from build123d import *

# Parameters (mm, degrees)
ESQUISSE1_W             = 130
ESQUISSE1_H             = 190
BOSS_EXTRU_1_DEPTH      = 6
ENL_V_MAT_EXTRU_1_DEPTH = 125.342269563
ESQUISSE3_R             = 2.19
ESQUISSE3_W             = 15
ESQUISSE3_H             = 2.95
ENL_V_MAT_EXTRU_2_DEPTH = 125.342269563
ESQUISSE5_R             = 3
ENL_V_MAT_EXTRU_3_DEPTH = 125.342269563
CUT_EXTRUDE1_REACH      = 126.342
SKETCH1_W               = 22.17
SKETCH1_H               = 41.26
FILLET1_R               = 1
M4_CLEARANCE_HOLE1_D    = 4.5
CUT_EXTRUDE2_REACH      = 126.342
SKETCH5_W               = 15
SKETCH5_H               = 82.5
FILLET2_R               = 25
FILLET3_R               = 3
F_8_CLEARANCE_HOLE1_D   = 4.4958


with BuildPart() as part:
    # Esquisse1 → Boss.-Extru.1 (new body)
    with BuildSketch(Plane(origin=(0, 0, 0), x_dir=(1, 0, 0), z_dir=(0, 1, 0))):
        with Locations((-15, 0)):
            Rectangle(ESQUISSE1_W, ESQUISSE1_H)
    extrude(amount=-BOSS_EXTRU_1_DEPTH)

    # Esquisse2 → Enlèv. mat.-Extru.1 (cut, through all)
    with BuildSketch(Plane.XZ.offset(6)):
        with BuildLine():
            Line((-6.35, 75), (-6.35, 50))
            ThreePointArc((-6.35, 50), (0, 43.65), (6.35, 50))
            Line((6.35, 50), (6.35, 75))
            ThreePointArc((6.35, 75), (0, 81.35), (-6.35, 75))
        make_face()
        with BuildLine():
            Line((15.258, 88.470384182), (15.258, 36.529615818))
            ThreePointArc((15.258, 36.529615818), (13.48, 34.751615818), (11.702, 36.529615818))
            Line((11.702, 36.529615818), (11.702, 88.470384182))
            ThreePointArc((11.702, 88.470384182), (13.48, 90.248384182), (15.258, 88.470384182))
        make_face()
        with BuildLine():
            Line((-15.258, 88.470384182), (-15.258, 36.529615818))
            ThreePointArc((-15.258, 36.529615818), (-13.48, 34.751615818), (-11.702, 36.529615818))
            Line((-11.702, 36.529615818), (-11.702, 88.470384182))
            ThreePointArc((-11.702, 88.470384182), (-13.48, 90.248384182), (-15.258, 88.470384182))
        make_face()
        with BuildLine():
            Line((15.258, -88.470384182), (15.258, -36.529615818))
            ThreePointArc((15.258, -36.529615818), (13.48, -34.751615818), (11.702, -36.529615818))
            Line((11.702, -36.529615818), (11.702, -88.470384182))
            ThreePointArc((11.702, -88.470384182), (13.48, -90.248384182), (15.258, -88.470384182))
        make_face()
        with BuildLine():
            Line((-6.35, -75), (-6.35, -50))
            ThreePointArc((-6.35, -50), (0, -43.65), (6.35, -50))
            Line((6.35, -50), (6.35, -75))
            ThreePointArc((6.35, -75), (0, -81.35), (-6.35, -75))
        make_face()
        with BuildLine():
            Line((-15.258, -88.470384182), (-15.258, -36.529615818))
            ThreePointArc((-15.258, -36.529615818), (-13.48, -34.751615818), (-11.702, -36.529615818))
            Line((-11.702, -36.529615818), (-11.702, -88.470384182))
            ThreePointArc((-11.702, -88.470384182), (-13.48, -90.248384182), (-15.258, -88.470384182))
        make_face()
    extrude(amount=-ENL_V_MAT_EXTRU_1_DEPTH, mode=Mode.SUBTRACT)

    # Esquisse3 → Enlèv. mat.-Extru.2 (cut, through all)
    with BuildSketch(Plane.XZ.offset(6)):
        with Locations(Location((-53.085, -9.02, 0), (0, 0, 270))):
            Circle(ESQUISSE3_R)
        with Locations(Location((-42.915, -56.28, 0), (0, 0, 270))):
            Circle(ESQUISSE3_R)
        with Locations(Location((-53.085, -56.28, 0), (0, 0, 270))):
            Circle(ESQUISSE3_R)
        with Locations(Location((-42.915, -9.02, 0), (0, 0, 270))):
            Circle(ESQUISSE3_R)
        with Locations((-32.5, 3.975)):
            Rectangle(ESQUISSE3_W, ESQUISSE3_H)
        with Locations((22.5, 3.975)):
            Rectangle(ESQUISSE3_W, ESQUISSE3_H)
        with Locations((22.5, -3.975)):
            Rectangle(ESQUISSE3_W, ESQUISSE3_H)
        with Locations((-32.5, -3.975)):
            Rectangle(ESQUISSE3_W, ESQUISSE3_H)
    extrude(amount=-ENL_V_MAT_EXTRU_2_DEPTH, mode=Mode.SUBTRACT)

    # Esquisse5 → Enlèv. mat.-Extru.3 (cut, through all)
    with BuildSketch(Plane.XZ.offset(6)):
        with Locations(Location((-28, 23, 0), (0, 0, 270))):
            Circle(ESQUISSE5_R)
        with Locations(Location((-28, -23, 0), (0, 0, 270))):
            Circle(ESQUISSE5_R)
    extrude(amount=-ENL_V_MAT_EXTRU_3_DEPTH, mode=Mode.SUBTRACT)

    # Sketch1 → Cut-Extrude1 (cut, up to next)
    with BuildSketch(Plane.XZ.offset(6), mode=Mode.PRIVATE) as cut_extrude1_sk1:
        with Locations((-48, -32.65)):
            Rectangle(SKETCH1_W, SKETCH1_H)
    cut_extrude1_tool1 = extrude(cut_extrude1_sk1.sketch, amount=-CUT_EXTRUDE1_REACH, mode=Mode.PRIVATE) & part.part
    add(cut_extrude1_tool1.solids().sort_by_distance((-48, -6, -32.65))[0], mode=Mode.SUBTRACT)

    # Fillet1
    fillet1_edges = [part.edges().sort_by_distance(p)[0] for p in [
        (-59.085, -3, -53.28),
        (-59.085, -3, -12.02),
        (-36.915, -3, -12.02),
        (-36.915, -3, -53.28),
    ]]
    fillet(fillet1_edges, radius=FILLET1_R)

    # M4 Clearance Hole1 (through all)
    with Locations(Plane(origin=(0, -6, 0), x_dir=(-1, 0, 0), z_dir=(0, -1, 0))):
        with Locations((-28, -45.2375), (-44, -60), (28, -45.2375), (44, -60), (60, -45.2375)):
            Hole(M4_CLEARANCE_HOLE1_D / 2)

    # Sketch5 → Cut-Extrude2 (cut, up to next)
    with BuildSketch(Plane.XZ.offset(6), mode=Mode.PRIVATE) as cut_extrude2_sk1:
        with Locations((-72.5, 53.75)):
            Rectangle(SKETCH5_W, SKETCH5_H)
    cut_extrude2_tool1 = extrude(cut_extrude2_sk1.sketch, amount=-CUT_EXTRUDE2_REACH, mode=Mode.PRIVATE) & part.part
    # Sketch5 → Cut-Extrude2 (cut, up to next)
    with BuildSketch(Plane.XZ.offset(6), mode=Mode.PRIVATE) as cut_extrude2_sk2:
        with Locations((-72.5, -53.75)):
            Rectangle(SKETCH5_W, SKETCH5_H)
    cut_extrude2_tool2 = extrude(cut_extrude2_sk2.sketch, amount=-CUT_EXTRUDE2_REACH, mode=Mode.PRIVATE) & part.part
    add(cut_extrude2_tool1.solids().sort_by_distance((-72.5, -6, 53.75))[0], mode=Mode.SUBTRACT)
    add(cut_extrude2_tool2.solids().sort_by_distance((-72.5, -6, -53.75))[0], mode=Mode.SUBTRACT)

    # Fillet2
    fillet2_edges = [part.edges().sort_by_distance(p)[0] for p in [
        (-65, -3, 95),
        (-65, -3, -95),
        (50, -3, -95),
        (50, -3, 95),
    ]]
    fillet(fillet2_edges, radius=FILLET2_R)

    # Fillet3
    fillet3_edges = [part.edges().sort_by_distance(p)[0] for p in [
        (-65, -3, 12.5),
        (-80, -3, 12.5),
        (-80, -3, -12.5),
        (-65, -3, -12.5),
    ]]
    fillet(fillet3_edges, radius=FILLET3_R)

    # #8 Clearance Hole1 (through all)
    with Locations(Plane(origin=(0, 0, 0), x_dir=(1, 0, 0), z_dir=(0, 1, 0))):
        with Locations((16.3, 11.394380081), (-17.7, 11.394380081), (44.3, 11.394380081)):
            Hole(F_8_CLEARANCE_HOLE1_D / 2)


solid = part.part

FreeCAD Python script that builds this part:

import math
import FreeCAD as App
import Part
import Sketcher

V = App.Vector
Q = App.Units.Quantity


def edges_at(feature, points):
    """Names of the edges that pass closest to the given points."""
    edges = feature.Shape.Edges
    near = lambda p: min(range(len(edges)), key=lambda i: edges[i].distToShape(Part.Vertex(*p))[0])
    return sorted({f"Edge{near(p) + 1}" for p in points})

doc = App.newDocument("Part")
body = doc.addObject("PartDesign::Body", "Body")

# Sketch on XZ plane
sketch1 = body.newObject("Sketcher::SketchObject", "Sketch")
sketch1.AttachmentSupport = (doc.getObject("XZ_Plane"), [""])
sketch1.MapMode = "FlatFace"
sketch1.addGeometry([
    Part.LineSegment(V(-80, -95, 0), V(-80, 95, 0)),
    Part.LineSegment(V(-80, 95, 0), V(50, 95, 0)),
    Part.LineSegment(V(50, 95, 0), V(50, -95, 0)),
    Part.LineSegment(V(50, -95, 0), V(-80, -95, 0)),
], False)
sketch1.addConstraint([
    Sketcher.Constraint("Coincident", 0, 2, 1, 1),
    Sketcher.Constraint("Coincident", 1, 2, 2, 1),
    Sketcher.Constraint("Coincident", 2, 2, 3, 1),
    Sketcher.Constraint("Coincident", 3, 2, 0, 1),
    Sketcher.Constraint("Vertical", 0),
    Sketcher.Constraint("Horizontal", 1),
    Sketcher.Constraint("Vertical", 2),
    Sketcher.Constraint("Horizontal", 3),
    Sketcher.Constraint("DistanceX", 1, 1, 1, 2, Q("130 mm")),
    Sketcher.Constraint("DistanceY", 0, 1, 0, 2, Q("190 mm")),
    Sketcher.Constraint("DistanceX", 0, 2, -1, 1, Q("80 mm")),
    Sketcher.Constraint("DistanceY", -1, 1, 0, 2, Q("95 mm")),
])
pad1 = body.newObject("PartDesign::Pad", "Pad")
pad1.Profile = sketch1
pad1.Length = 6

# Sketch on XZ plane
sketch2 = body.newObject("Sketcher::SketchObject", "Sketch001")
sketch2.AttachmentSupport = (doc.getObject("XZ_Plane"), [""])
sketch2.MapMode = "FlatFace"
sketch2.AttachmentOffset = App.Placement(V(0, 0, 6), App.Rotation())
sketch2.addGeometry([
    Part.LineSegment(V(-6.35, 75, 0), V(-6.35, 50, 0)),  # 0
    Part.ArcOfCircle(Part.Circle(V(0, 50, 0), V(0, 0, 1), 6.35), math.radians(180), math.radians(360)),  # 1
    Part.LineSegment(V(6.35, 50, 0), V(6.35, 75, 0)),  # 2
    Part.ArcOfCircle(Part.Circle(V(0, 75, 0), V(0, 0, 1), 6.35), math.radians(0), math.radians(180)),  # 3
    Part.LineSegment(V(15.258, 36.529616, 0), V(15.258, 88.470384, 0)),  # 4
    Part.ArcOfCircle(Part.Circle(V(13.48, 88.470384, 0), V(0, 0, 1), 1.778), math.radians(0), math.radians(180)),  # 5
    Part.LineSegment(V(11.702, 88.470384, 0), V(11.702, 36.529616, 0)),  # 6
    Part.ArcOfCircle(Part.Circle(V(13.48, 36.529616, 0), V(0, 0, 1), 1.778), math.radians(180), math.radians(360)),  # 7
    Part.LineSegment(V(-15.258, 88.470384, 0), V(-15.258, 36.529616, 0)),  # 8
    Part.ArcOfCircle(Part.Circle(V(-13.48, 36.529616, 0), V(0, 0, 1), 1.778), math.radians(180), math.radians(360)),  # 9
    Part.LineSegment(V(-11.702, 36.529616, 0), V(-11.702, 88.470384, 0)),  # 10
    Part.ArcOfCircle(Part.Circle(V(-13.48, 88.470384, 0), V(0, 0, 1), 1.778), math.radians(0), math.radians(180)),  # 11
    Part.LineSegment(V(15.258, -88.470384, 0), V(15.258, -36.529616, 0)),  # 12
    Part.ArcOfCircle(Part.Circle(V(13.48, -36.529616, 0), V(0, 0, 1), 1.778), math.radians(0), math.radians(180)),  # 13
    Part.LineSegment(V(11.702, -36.529616, 0), V(11.702, -88.470384, 0)),  # 14
    Part.ArcOfCircle(Part.Circle(V(13.48, -88.470384, 0), V(0, 0, 1), 1.778), math.radians(180), math.radians(360)),  # 15
    Part.LineSegment(V(-6.35, -50, 0), V(-6.35, -75, 0)),  # 16
    Part.ArcOfCircle(Part.Circle(V(0, -75, 0), V(0, 0, 1), 6.35), math.radians(180), math.radians(360)),  # 17
    Part.LineSegment(V(6.35, -75, 0), V(6.35, -50, 0)),  # 18
    Part.ArcOfCircle(Part.Circle(V(0, -50, 0), V(0, 0, 1), 6.35), math.radians(0), math.radians(180)),  # 19
    Part.LineSegment(V(-15.258, -36.529616, 0), V(-15.258, -88.470384, 0)),  # 20
    Part.ArcOfCircle(Part.Circle(V(-13.48, -88.470384, 0), V(0, 0, 1), 1.778), math.radians(180), math.radians(360)),  # 21
    Part.LineSegment(V(-11.702, -88.470384, 0), V(-11.702, -36.529616, 0)),  # 22
    Part.ArcOfCircle(Part.Circle(V(-13.48, -36.529616, 0), V(0, 0, 1), 1.778), math.radians(0), math.radians(180)),  # 23
], False)
sketch2.addConstraint([
    Sketcher.Constraint("Tangent", 0, 2, 1, 1),
    Sketcher.Constraint("Tangent", 1, 2, 2, 1),
    Sketcher.Constraint("Tangent", 2, 2, 3, 1),
    Sketcher.Constraint("Tangent", 3, 2, 0, 1),
    Sketcher.Constraint("Tangent", 4, 2, 5, 1),
    Sketcher.Constraint("Tangent", 5, 2, 6, 1),
    Sketcher.Constraint("Tangent", 6, 2, 7, 1),
    Sketcher.Constraint("Tangent", 7, 2, 4, 1),
    Sketcher.Constraint("Tangent", 8, 2, 9, 1),
    Sketcher.Constraint("Tangent", 9, 2, 10, 1),
    Sketcher.Constraint("Tangent", 10, 2, 11, 1),
    Sketcher.Constraint("Tangent", 11, 2, 8, 1),
    Sketcher.Constraint("Tangent", 12, 2, 13, 1),
    Sketcher.Constraint("Tangent", 13, 2, 14, 1),
    Sketcher.Constraint("Tangent", 14, 2, 15, 1),
    Sketcher.Constraint("Tangent", 15, 2, 12, 1),
    Sketcher.Constraint("Tangent", 16, 2, 17, 1),
    Sketcher.Constraint("Tangent", 17, 2, 18, 1),
    Sketcher.Constraint("Tangent", 18, 2, 19, 1),
    Sketcher.Constraint("Tangent", 19, 2, 16, 1),
    Sketcher.Constraint("Tangent", 20, 2, 21, 1),
    Sketcher.Constraint("Tangent", 21, 2, 22, 1),
    Sketcher.Constraint("Tangent", 22, 2, 23, 1),
    Sketcher.Constraint("Tangent", 23, 2, 20, 1),
    Sketcher.Constraint("Vertical", 0),
    Sketcher.Constraint("Vertical", 2),
    Sketcher.Constraint("Vertical", 4),
    Sketcher.Constraint("Vertical", 6),
    Sketcher.Constraint("Vertical", 8),
    Sketcher.Constraint("Vertical", 10),
    Sketcher.Constraint("Vertical", 12),
    Sketcher.Constraint("Vertical", 14),
    Sketcher.Constraint("Vertical", 16),
    Sketcher.Constraint("Vertical", 18),
    Sketcher.Constraint("Vertical", 20),
    Sketcher.Constraint("Vertical", 22),
    Sketcher.Constraint("Equal", 7, 9),
    Sketcher.Constraint("Equal", 11, 13),
    Sketcher.Constraint("Equal", 3, 17),
    Sketcher.Constraint("Equal", 15, 21),
    Sketcher.Constraint("Symmetric", 9, 3, 13, 3, -1, 1),
    Sketcher.Constraint("Symmetric", 3, 3, 17, 3, -1, 1),
    Sketcher.Constraint("Symmetric", 5, 3, 21, 3, -1, 1),
    Sketcher.Constraint("Symmetric", 7, 3, 9, 3, -2),
    Sketcher.Constraint("Symmetric", 1, 3, 19, 3, -1),
    Sketcher.Constraint("Horizontal", 5, 3, 11, 3),
    Sketcher.Constraint("Horizontal", 15, 3, 21, 3),
    Sketcher.Constraint("Horizontal", 13, 3, 23, 3),
    Sketcher.Constraint("DistanceY", 0, 2, 0, 1, Q("25 mm")),
    Sketcher.Constraint("Radius", 1, Q("6.35 mm")),
    Sketcher.Constraint("DistanceY", -1, 1, 1, 3, Q("50 mm")),
    Sketcher.Constraint("Radius", 5, Q("1.778 mm")),
    Sketcher.Constraint("DistanceY", 13, 3, 5, 3, Q("125 mm")),
    Sketcher.Constraint("DistanceX", -1, 1, 5, 3, Q("13.48 mm")),
    Sketcher.Constraint("DistanceY", 4, 1, 4, 2, Q("51.940768 mm")),
])
pocket1 = body.newObject("PartDesign::Pocket", "Pocket")
pocket1.Profile = sketch2
pocket1.Type = "ThroughAll"

# Sketch on XZ plane
sketch3 = body.newObject("Sketcher::SketchObject", "Sketch002")
sketch3.AttachmentSupport = (doc.getObject("XZ_Plane"), [""])
sketch3.MapMode = "FlatFace"
sketch3.AttachmentOffset = App.Placement(V(0, 0, 6), App.Rotation())
sketch3.addGeometry([
    Part.Circle(V(-53.085, -9.02, 0), V(0, 0, 1), 2.19),  # 0
    Part.Circle(V(-42.915, -56.28, 0), V(0, 0, 1), 2.19),  # 1
    Part.Circle(V(-53.085, -56.28, 0), V(0, 0, 1), 2.19),  # 2
    Part.Circle(V(-42.915, -9.02, 0), V(0, 0, 1), 2.19),  # 3
    Part.LineSegment(V(-40, 5.45, 0), V(-40, 2.5, 0)),  # 4
    Part.LineSegment(V(-40, 2.5, 0), V(-25, 2.5, 0)),  # 5
    Part.LineSegment(V(-25, 2.5, 0), V(-25, 5.45, 0)),  # 6
    Part.LineSegment(V(-25, 5.45, 0), V(-40, 5.45, 0)),  # 7
    Part.LineSegment(V(15, 5.45, 0), V(15, 2.5, 0)),  # 8
    Part.LineSegment(V(15, 2.5, 0), V(30, 2.5, 0)),  # 9
    Part.LineSegment(V(30, 2.5, 0), V(30, 5.45, 0)),  # 10
    Part.LineSegment(V(30, 5.45, 0), V(15, 5.45, 0)),  # 11
    Part.LineSegment(V(15, -2.5, 0), V(15, -5.45, 0)),  # 12
    Part.LineSegment(V(15, -5.45, 0), V(30, -5.45, 0)),  # 13
    Part.LineSegment(V(30, -5.45, 0), V(30, -2.5, 0)),  # 14
    Part.LineSegment(V(30, -2.5, 0), V(15, -2.5, 0)),  # 15
    Part.LineSegment(V(-40, -2.5, 0), V(-40, -5.45, 0)),  # 16
    Part.LineSegment(V(-40, -5.45, 0), V(-25, -5.45, 0)),  # 17
    Part.LineSegment(V(-25, -5.45, 0), V(-25, -2.5, 0)),  # 18
    Part.LineSegment(V(-25, -2.5, 0), V(-40, -2.5, 0)),  # 19
], False)
sketch3.addConstraint([
    Sketcher.Constraint("Coincident", 4, 2, 5, 1),
    Sketcher.Constraint("Coincident", 5, 2, 6, 1),
    Sketcher.Constraint("Coincident", 6, 2, 7, 1),
    Sketcher.Constraint("Coincident", 7, 2, 4, 1),
    Sketcher.Constraint("Coincident", 8, 2, 9, 1),
    Sketcher.Constraint("Coincident", 9, 2, 10, 1),
    Sketcher.Constraint("Coincident", 10, 2, 11, 1),
    Sketcher.Constraint("Coincident", 11, 2, 8, 1),
    Sketcher.Constraint("Coincident", 12, 2, 13, 1),
    Sketcher.Constraint("Coincident", 13, 2, 14, 1),
    Sketcher.Constraint("Coincident", 14, 2, 15, 1),
    Sketcher.Constraint("Coincident", 15, 2, 12, 1),
    Sketcher.Constraint("Coincident", 16, 2, 17, 1),
    Sketcher.Constraint("Coincident", 17, 2, 18, 1),
    Sketcher.Constraint("Coincident", 18, 2, 19, 1),
    Sketcher.Constraint("Coincident", 19, 2, 16, 1),
    Sketcher.Constraint("Vertical", 4),
    Sketcher.Constraint("Horizontal", 5),
    Sketcher.Constraint("Vertical", 6),
    Sketcher.Constraint("Horizontal", 7),
    Sketcher.Constraint("Vertical", 8),
    Sketcher.Constraint("Horizontal", 9),
    Sketcher.Constraint("Vertical", 10),
    Sketcher.Constraint("Horizontal", 11),
    Sketcher.Constraint("Vertical", 12),
    Sketcher.Constraint("Horizontal", 13),
    Sketcher.Constraint("Vertical", 14),
    Sketcher.Constraint("Horizontal", 15),
    Sketcher.Constraint("Vertical", 16),
    Sketcher.Constraint("Horizontal", 17),
    Sketcher.Constraint("Vertical", 18),
    Sketcher.Constraint("Horizontal", 19),
    Sketcher.Constraint("Equal", 0, 1),
    Sketcher.Constraint("Equal", 1, 2),
    Sketcher.Constraint("Equal", 2, 3),
    Sketcher.Constraint("Symmetric", 11, 2, 12, 2, -1),
    Sketcher.Constraint("Symmetric", 9, 2, 14, 2, -1),
    Sketcher.Constraint("Symmetric", 7, 2, 16, 2, -1),
    Sketcher.Constraint("Symmetric", 5, 2, 18, 2, -1),
    Sketcher.Constraint("Horizontal", 1, 3, 2, 3),
    Sketcher.Constraint("Horizontal", 0, 3, 3, 3),
    Sketcher.Constraint("Horizontal", 5, 2, 8, 2),
    Sketcher.Constraint("Horizontal", 7, 2, 10, 2),
    Sketcher.Constraint("Vertical", 0, 3, 2, 3),
    Sketcher.Constraint("Vertical", 1, 3, 3, 3),
    Sketcher.Constraint("Equal", 7, 9),
    Sketcher.Constraint("Diameter", 0, Q("4.38 mm")),
    Sketcher.Constraint("DistanceX", 5, 1, 5, 2, Q("15 mm")),
    Sketcher.Constraint("DistanceX", 4, 2, -1, 1, Q("40 mm")),
    Sketcher.Constraint("DistanceX", -1, 1, 8, 2, Q("15 mm")),
    Sketcher.Constraint("DistanceY", 14, 2, 9, 2, Q("5 mm")),
    Sketcher.Constraint("DistanceY", 4, 2, 4, 1, Q("2.95 mm")),
    Sketcher.Constraint("DistanceY", 0, 3, -1, 1, Q("9.02 mm")),
    Sketcher.Constraint("DistanceY", 1, 3, -1, 1, Q("56.28 mm")),
    Sketcher.Constraint("DistanceX", 0, 3, 1, 3, Q("10.17 mm")),
    Sketcher.Constraint("DistanceX", 0, 3, -1, 1, Q("53.085 mm")),
])
pocket2 = body.newObject("PartDesign::Pocket", "Pocket001")
pocket2.Profile = sketch3
pocket2.Type = "ThroughAll"

# Sketch on XZ plane
sketch4 = body.newObject("Sketcher::SketchObject", "Sketch003")
sketch4.AttachmentSupport = (doc.getObject("XZ_Plane"), [""])
sketch4.MapMode = "FlatFace"
sketch4.AttachmentOffset = App.Placement(V(0, 0, 6), App.Rotation())
sketch4.addGeometry([
    Part.Circle(V(-28, 23, 0), V(0, 0, 1), 3),
    Part.Circle(V(-28, -23, 0), V(0, 0, 1), 3),
], False)
sketch4.addConstraint([
    Sketcher.Constraint("Equal", 0, 1),
    Sketcher.Constraint("Symmetric", 0, 3, 1, 3, -1),
    Sketcher.Constraint("Diameter", 0, Q("6 mm")),
    Sketcher.Constraint("DistanceX", 0, 3, -1, 1, Q("28 mm")),
    Sketcher.Constraint("DistanceY", -1, 1, 0, 3, Q("23 mm")),
])
pocket3 = body.newObject("PartDesign::Pocket", "Pocket002")
pocket3.Profile = sketch4
pocket3.Type = "ThroughAll"

# Sketch on XZ plane
sketch5 = body.newObject("Sketcher::SketchObject", "Sketch004")
sketch5.AttachmentSupport = (doc.getObject("XZ_Plane"), [""])
sketch5.MapMode = "FlatFace"
sketch5.AttachmentOffset = App.Placement(V(0, 0, 6), App.Rotation())
sketch5.addGeometry([
    Part.LineSegment(V(-59.085, -12.02, 0), V(-59.085, -53.28, 0)),
    Part.LineSegment(V(-59.085, -53.28, 0), V(-36.915, -53.28, 0)),
    Part.LineSegment(V(-36.915, -53.28, 0), V(-36.915, -12.02, 0)),
    Part.LineSegment(V(-36.915, -12.02, 0), V(-59.085, -12.02, 0)),
], False)
sketch5.addConstraint([
    Sketcher.Constraint("Coincident", 0, 2, 1, 1),
    Sketcher.Constraint("Coincident", 1, 2, 2, 1),
    Sketcher.Constraint("Coincident", 2, 2, 3, 1),
    Sketcher.Constraint("Coincident", 3, 2, 0, 1),
    Sketcher.Constraint("Vertical", 0),
    Sketcher.Constraint("Horizontal", 1),
    Sketcher.Constraint("Vertical", 2),
    Sketcher.Constraint("Horizontal", 3),
    Sketcher.Constraint("DistanceX", 1, 1, 1, 2, Q("22.17 mm")),
    Sketcher.Constraint("DistanceY", 0, 2, 0, 1, Q("41.26 mm")),
    Sketcher.Constraint("DistanceY", 0, 2, -1, 1, Q("53.28 mm")),
    Sketcher.Constraint("DistanceX", 0, 2, -1, 1, Q("59.085 mm")),
])
pocket4 = body.newObject("PartDesign::Pocket", "Pocket003")
pocket4.Profile = sketch5
pocket4.Type = "UpToFirst"
doc.recompute()

fillet = body.newObject("PartDesign::Fillet", "Fillet")
fillet.Base = (pocket4, edges_at(pocket4, [
    (-59.085, -3, -53.28),
    (-59.085, -3, -12.02),
    (-36.915, -3, -12.02),
    (-36.915, -3, -53.28),
]))
fillet.Radius = 1

# Sketch on XZ plane
sketch6 = body.newObject("Sketcher::SketchObject", "Sketch005")
sketch6.AttachmentSupport = (doc.getObject("XZ_Plane"), [""])
sketch6.MapMode = "FlatFace"
sketch6.AttachmentOffset = App.Placement(V(0, 0, 6), App.Rotation())
sketch6.addGeometry([
    Part.Circle(V(28, 45.2375, 0), V(0, 0, 1), 2.25),  # 0
    Part.Circle(V(44, 60, 0), V(0, 0, 1), 2.25),  # 1
    Part.Circle(V(-28, 45.2375, 0), V(0, 0, 1), 2.25),  # 2
    Part.Circle(V(-44, 60, 0), V(0, 0, 1), 2.25),  # 3
    Part.Circle(V(-60, 45.2375, 0), V(0, 0, 1), 2.25),  # 4
], False)
sketch6.addConstraint([
    Sketcher.Constraint("Equal", 0, 1),
    Sketcher.Constraint("Equal", 1, 2),
    Sketcher.Constraint("Equal", 2, 3),
    Sketcher.Constraint("Equal", 3, 4),
    Sketcher.Constraint("Symmetric", 0, 3, 2, 3, -2),
    Sketcher.Constraint("Symmetric", 1, 3, 3, 3, -2),
    Sketcher.Constraint("Horizontal", 2, 3, 4, 3),
    Sketcher.Constraint("Diameter", 0, Q("4.5 mm")),
    Sketcher.Constraint("DistanceX", -1, 1, 0, 3, Q("28 mm")),
    Sketcher.Constraint("DistanceX", -1, 1, 1, 3, Q("44 mm")),
    Sketcher.Constraint("DistanceY", -1, 1, 1, 3, Q("60 mm")),
    Sketcher.Constraint("DistanceX", 4, 3, -1, 1, Q("60 mm")),
    Sketcher.Constraint("DistanceY", -1, 1, 0, 3, Q("45.2375 mm")),
])
doc.recompute()
hole = body.newObject("PartDesign::Hole", "Hole")
hole.Profile = sketch6
hole.ThreadType = "None"
hole.Diameter = 4.5
hole.DepthType = "ThroughAll"

# Sketch on XZ plane
sketch7 = body.newObject("Sketcher::SketchObject", "Sketch006")
sketch7.AttachmentSupport = (doc.getObject("XZ_Plane"), [""])
sketch7.MapMode = "FlatFace"
sketch7.AttachmentOffset = App.Placement(V(0, 0, 6), App.Rotation())
sketch7.addGeometry([
    Part.LineSegment(V(-80, 95, 0), V(-80, 12.5, 0)),
    Part.LineSegment(V(-80, 12.5, 0), V(-65, 12.5, 0)),
    Part.LineSegment(V(-65, 12.5, 0), V(-65, 95, 0)),
    Part.LineSegment(V(-65, 95, 0), V(-80, 95, 0)),
], False)
sketch7.addConstraint([
    Sketcher.Constraint("Coincident", 0, 2, 1, 1),
    Sketcher.Constraint("Coincident", 1, 2, 2, 1),
    Sketcher.Constraint("Coincident", 2, 2, 3, 1),
    Sketcher.Constraint("Coincident", 3, 2, 0, 1),
    Sketcher.Constraint("Vertical", 0),
    Sketcher.Constraint("Horizontal", 1),
    Sketcher.Constraint("Vertical", 2),
    Sketcher.Constraint("Horizontal", 3),
    Sketcher.Constraint("DistanceX", 1, 1, 1, 2, Q("15 mm")),
    Sketcher.Constraint("DistanceY", 0, 2, 0, 1, Q("82.5 mm")),
    Sketcher.Constraint("DistanceX", 0, 2, -1, 1, Q("80 mm")),
    Sketcher.Constraint("DistanceY", -1, 1, 2, 2, Q("95 mm")),
])
pocket5 = body.newObject("PartDesign::Pocket", "Pocket004")
pocket5.Profile = sketch7
pocket5.Type = "UpToFirst"

# Sketch on XZ plane
sketch8 = body.newObject("Sketcher::SketchObject", "Sketch007")
sketch8.AttachmentSupport = (doc.getObject("XZ_Plane"), [""])
sketch8.MapMode = "FlatFace"
sketch8.AttachmentOffset = App.Placement(V(0, 0, 6), App.Rotation())
sketch8.addGeometry([
    Part.LineSegment(V(-80, -12.5, 0), V(-80, -95, 0)),
    Part.LineSegment(V(-80, -95, 0), V(-65, -95, 0)),
    Part.LineSegment(V(-65, -95, 0), V(-65, -12.5, 0)),
    Part.LineSegment(V(-65, -12.5, 0), V(-80, -12.5, 0)),
], False)
sketch8.addConstraint([
    Sketcher.Constraint("Coincident", 0, 2, 1, 1),
    Sketcher.Constraint("Coincident", 1, 2, 2, 1),
    Sketcher.Constraint("Coincident", 2, 2, 3, 1),
    Sketcher.Constraint("Coincident", 3, 2, 0, 1),
    Sketcher.Constraint("Vertical", 0),
    Sketcher.Constraint("Horizontal", 1),
    Sketcher.Constraint("Vertical", 2),
    Sketcher.Constraint("Horizontal", 3),
    Sketcher.Constraint("DistanceX", 1, 1, 1, 2, Q("15 mm")),
    Sketcher.Constraint("DistanceY", 0, 2, 0, 1, Q("82.5 mm")),
    Sketcher.Constraint("DistanceX", 0, 2, -1, 1, Q("80 mm")),
    Sketcher.Constraint("DistanceY", 0, 2, -1, 1, Q("95 mm")),
])
pocket6 = body.newObject("PartDesign::Pocket", "Pocket005")
pocket6.Profile = sketch8
pocket6.Type = "UpToFirst"
doc.recompute()

fillet2 = body.newObject("PartDesign::Fillet", "Fillet001")
fillet2.Base = (pocket6, edges_at(pocket6, [
    (-65, -3, 95),
    (-65, -3, -95),
    (50, -3, -95),
    (50, -3, 95),
]))
fillet2.Radius = 25
doc.recompute()

fillet3 = body.newObject("PartDesign::Fillet", "Fillet002")
fillet3.Base = (fillet2, edges_at(fillet2, [
    (-65, -3, 12.5),
    (-80, -3, 12.5),
    (-80, -3, -12.5),
    (-65, -3, -12.5),
]))
fillet3.Radius = 3

# Sketch on XZ plane
sketch9 = body.newObject("Sketcher::SketchObject", "Sketch008")
sketch9.AttachmentSupport = (doc.getObject("XZ_Plane"), [""])
sketch9.MapMode = "FlatFace"
sketch9.addGeometry([
    Part.Circle(V(16.3, -11.39438, 0), V(0, 0, 1), 2.2479),
    Part.Circle(V(-17.7, -11.39438, 0), V(0, 0, 1), 2.2479),
    Part.Circle(V(44.3, -11.39438, 0), V(0, 0, 1), 2.2479),
], False)
sketch9.addConstraint([
    Sketcher.Constraint("Equal", 0, 1),
    Sketcher.Constraint("Equal", 1, 2),
    Sketcher.Constraint("Horizontal", 0, 3, 1, 3),
    Sketcher.Constraint("Horizontal", 1, 3, 2, 3),
    Sketcher.Constraint("DistanceX", 1, 3, 0, 3, Q("34 mm")),
    Sketcher.Constraint("DistanceX", 0, 3, 2, 3, Q("28 mm")),
    Sketcher.Constraint("Diameter", 0, Q("4.4958 mm")),
    Sketcher.Constraint("DistanceX", -1, 1, 0, 3, Q("16.3 mm")),
    Sketcher.Constraint("DistanceY", 0, 3, -1, 1, Q("11.39438 mm")),
])
doc.recompute()
hole2 = body.newObject("PartDesign::Hole", "Hole001")
hole2.Profile = sketch9
hole2.ThreadType = "None"
hole2.Diameter = 4.4958
hole2.DepthType = "ThroughAll"
hole2.Reversed = True

doc.recompute()
